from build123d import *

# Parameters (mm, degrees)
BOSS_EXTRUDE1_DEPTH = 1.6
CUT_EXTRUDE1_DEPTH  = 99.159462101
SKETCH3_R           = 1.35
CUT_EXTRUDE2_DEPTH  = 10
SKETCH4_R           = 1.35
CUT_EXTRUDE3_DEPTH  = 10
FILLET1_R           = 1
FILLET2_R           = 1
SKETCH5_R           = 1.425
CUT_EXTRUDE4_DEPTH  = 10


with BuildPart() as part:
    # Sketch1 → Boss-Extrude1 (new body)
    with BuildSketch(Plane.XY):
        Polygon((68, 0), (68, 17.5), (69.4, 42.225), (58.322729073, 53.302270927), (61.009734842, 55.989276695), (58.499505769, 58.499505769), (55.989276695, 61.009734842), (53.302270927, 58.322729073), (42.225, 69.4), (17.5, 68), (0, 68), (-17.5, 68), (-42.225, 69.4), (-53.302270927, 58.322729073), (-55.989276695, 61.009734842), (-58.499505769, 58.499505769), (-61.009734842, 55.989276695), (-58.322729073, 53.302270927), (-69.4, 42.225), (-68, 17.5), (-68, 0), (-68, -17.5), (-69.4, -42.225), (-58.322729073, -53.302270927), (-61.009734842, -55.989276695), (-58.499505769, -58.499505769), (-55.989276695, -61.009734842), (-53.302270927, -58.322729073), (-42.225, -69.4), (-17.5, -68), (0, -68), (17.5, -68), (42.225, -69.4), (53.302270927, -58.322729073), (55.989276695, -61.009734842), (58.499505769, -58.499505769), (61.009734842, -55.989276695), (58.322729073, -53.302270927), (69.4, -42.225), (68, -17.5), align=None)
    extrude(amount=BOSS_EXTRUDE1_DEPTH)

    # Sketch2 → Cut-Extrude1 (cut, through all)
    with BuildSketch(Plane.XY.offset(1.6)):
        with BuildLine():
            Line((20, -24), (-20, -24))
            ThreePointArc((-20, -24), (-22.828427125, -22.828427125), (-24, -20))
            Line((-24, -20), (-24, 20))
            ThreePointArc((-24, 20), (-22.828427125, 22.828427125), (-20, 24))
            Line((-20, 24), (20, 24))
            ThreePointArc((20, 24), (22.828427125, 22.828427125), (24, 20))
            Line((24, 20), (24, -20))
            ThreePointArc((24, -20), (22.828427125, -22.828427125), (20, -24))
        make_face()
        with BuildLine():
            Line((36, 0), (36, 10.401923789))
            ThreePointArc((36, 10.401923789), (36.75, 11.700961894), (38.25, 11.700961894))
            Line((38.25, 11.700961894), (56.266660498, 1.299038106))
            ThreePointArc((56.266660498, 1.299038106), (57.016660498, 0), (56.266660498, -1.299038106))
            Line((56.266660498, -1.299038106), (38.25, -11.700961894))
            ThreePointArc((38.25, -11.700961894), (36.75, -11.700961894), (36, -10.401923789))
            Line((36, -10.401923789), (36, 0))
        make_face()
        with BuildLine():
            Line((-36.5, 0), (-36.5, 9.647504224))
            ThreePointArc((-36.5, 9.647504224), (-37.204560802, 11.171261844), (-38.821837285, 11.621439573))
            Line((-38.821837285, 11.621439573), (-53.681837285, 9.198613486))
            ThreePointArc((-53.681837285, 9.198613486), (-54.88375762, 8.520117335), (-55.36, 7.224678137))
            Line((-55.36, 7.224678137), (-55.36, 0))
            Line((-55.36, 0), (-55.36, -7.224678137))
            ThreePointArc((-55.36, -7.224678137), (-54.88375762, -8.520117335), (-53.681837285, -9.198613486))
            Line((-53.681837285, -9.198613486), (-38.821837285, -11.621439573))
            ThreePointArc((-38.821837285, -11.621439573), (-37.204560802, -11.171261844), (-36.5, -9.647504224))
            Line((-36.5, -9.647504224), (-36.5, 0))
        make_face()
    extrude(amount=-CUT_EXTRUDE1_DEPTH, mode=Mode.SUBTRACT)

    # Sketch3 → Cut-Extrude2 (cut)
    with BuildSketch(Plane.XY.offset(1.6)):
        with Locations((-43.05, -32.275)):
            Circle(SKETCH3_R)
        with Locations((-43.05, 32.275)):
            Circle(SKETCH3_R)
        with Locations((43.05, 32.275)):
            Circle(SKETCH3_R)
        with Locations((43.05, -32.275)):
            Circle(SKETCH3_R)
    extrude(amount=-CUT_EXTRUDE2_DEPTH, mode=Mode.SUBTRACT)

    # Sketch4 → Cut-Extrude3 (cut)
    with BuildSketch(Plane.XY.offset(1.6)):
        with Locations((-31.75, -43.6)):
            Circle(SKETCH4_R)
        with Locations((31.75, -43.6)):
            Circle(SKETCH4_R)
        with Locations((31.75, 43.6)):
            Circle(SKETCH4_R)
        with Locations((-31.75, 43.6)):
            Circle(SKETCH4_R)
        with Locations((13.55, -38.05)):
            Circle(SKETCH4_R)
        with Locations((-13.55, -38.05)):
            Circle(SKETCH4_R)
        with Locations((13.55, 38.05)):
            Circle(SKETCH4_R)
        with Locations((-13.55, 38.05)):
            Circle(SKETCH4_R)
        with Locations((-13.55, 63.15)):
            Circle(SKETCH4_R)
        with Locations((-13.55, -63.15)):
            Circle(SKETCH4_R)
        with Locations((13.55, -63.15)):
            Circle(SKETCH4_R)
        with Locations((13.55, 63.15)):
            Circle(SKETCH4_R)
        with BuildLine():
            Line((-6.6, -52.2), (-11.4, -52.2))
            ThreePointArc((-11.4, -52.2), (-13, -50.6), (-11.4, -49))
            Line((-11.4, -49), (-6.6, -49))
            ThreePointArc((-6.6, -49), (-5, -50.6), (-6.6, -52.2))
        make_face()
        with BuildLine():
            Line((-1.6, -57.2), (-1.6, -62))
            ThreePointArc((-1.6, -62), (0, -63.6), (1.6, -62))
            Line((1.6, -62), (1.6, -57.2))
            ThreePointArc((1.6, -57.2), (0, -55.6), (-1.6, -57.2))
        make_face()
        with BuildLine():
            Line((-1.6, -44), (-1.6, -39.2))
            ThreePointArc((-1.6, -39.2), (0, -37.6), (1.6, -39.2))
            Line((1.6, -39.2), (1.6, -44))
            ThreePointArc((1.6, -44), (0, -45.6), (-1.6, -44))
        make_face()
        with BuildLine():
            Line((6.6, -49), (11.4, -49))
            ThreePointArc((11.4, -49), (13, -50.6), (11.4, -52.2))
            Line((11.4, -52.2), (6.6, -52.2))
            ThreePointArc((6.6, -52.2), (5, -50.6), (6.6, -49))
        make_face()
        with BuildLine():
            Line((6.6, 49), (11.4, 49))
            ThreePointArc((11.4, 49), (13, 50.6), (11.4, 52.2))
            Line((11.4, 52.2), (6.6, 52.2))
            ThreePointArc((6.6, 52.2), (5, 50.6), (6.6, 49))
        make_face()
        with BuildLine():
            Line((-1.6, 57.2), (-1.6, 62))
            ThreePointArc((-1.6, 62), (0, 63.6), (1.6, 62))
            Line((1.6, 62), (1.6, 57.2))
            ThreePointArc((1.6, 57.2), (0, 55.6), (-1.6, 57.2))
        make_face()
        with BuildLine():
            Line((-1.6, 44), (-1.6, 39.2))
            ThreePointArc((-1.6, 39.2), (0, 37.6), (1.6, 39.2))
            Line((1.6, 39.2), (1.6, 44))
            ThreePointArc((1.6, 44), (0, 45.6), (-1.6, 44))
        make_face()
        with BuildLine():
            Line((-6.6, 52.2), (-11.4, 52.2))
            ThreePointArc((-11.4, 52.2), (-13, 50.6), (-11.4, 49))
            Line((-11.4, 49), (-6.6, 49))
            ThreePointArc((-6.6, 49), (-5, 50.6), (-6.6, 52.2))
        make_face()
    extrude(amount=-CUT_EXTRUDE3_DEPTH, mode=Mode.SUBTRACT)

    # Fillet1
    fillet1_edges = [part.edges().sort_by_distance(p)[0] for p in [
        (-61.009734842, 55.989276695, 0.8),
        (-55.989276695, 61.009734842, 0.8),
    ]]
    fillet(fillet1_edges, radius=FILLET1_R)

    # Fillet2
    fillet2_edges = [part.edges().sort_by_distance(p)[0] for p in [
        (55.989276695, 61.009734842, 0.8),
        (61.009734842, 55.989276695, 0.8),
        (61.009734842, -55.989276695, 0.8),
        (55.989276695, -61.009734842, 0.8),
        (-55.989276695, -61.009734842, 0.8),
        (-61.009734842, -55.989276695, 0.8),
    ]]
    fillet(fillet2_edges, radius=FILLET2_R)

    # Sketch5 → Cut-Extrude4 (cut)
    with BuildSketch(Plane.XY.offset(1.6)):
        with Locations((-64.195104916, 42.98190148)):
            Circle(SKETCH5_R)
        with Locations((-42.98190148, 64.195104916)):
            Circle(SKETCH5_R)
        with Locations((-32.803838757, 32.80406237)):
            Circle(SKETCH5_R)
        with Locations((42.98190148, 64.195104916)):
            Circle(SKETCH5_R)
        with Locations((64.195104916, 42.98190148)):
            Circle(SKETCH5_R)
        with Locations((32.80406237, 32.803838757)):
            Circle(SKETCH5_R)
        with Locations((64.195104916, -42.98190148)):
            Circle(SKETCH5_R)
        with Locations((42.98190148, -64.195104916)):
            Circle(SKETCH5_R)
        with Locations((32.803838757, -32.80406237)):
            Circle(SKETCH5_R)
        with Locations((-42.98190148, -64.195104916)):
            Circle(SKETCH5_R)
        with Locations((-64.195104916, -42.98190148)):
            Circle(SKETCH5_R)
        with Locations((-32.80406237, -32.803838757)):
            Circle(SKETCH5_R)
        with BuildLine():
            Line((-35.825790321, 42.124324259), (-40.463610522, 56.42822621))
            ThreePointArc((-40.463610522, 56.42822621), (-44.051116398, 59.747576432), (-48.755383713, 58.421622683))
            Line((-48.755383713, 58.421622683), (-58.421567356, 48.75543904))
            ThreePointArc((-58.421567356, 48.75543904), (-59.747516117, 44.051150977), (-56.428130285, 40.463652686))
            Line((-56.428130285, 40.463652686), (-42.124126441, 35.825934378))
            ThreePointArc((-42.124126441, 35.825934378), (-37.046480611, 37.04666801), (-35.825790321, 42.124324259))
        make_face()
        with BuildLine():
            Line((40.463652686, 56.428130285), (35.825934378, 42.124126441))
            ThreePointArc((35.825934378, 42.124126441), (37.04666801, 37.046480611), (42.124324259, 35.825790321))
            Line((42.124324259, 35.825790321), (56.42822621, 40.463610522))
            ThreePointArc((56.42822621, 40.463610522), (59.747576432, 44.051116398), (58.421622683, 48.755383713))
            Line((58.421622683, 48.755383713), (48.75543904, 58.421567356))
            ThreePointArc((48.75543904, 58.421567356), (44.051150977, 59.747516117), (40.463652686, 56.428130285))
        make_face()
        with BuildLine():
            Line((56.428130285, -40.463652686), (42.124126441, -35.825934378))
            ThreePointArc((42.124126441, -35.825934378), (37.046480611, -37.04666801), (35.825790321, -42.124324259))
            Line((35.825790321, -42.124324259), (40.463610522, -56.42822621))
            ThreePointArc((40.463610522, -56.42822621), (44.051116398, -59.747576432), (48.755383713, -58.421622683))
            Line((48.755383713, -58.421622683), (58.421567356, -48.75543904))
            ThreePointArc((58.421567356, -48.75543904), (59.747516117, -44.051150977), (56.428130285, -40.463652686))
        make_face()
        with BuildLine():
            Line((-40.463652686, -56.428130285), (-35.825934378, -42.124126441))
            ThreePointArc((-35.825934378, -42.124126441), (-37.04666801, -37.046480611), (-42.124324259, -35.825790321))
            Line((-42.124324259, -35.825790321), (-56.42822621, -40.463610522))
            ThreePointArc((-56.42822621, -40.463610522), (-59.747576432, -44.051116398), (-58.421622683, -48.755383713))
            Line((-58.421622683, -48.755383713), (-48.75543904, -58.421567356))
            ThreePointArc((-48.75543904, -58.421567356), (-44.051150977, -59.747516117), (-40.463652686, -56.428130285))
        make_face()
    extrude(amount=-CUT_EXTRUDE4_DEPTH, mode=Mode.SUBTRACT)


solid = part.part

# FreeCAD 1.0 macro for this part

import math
import FreeCAD as App
import Part
import Sketcher
Q = App.Units.Quantity


def edges_at(feature, points):
    """Names of the edges that pass closest to the given points."""
    edges = feature.Shape.Edges
    near = lambda p: min(range(len(edges)), key=lambda i: edges[i].distToShape(Part.Vertex(*p))[0])
    return sorted({f"Edge{near(p) + 1}" for p in points})

doc = App.newDocument("Part")
body = doc.addObject("PartDesign::Body", "Body")

# Sketch on XY plane
sketch1 = body.newObject("Sketcher::SketchObject", "Sketch")
sketch1.AttachmentSupport = (doc.getObject("XY_Plane"), [""])
sketch1.MapMode = "FlatFace"
sketch1.addGeometry([
    Part.LineSegment(App.Vector(68, 17.5, 0), App.Vector(69.4, 42.2, 0)),  # 0
    Part.LineSegment(App.Vector(69.4, 42.2, 0), App.Vector(58.3, 53.3, 0)),  # 1
    Part.LineSegment(App.Vector(58.3, 53.3, 0), App.Vector(61, 56, 0)),  # 2
    Part.LineSegment(App.Vector(61, 56, 0), App.Vector(58.5, 58.5, 0)),  # 3
    Part.LineSegment(App.Vector(58.5, 58.5, 0), App.Vector(56, 61, 0)),  # 4
    Part.LineSegment(App.Vector(56, 61, 0), App.Vector(53.3, 58.3, 0)),  # 5
    Part.LineSegment(App.Vector(53.3, 58.3, 0), App.Vector(42.2, 69.4, 0)),  # 6
    Part.LineSegment(App.Vector(42.2, 69.4, 0), App.Vector(17.5, 68, 0)),  # 7
    Part.LineSegment(App.Vector(17.5, 68, 0), App.Vector(-17.5, 68, 0)),  # 8
    Part.LineSegment(App.Vector(-17.5, 68, 0), App.Vector(-42.2, 69.4, 0)),  # 9
    Part.LineSegment(App.Vector(-42.2, 69.4, 0), App.Vector(-53.3, 58.3, 0)),  # 10
    Part.LineSegment(App.Vector(-53.3, 58.3, 0), App.Vector(-56, 61, 0)),  # 11
    Part.LineSegment(App.Vector(-56, 61, 0), App.Vector(-58.5, 58.5, 0)),  # 12
    Part.LineSegment(App.Vector(-58.5, 58.5, 0), App.Vector(-61, 56, 0)),  # 13
    Part.LineSegment(App.Vector(-61, 56, 0), App.Vector(-58.3, 53.3, 0)),  # 14
    Part.LineSegment(App.Vector(-58.3, 53.3, 0), App.Vector(-69.4, 42.2, 0)),  # 15
    Part.LineSegment(App.Vector(-69.4, 42.2, 0), App.Vector(-68, 17.5, 0)),  # 16
    Part.LineSegment(App.Vector(-68, 17.5, 0), App.Vector(-68, -17.5, 0)),  # 17
    Part.LineSegment(App.Vector(-68, -17.5, 0), App.Vector(-69.4, -42.2, 0)),  # 18
    Part.LineSegment(App.Vector(-69.4, -42.2, 0), App.Vector(-58.3, -53.3, 0)),  # 19
    Part.LineSegment(App.Vector(-58.3, -53.3, 0), App.Vector(-61, -56, 0)),  # 20
    Part.LineSegment(App.Vector(-61, -56, 0), App.Vector(-58.5, -58.5, 0)),  # 21
    Part.LineSegment(App.Vector(-58.5, -58.5, 0), App.Vector(-56, -61, 0)),  # 22
    Part.LineSegment(App.Vector(-56, -61, 0), App.Vector(-53.3, -58.3, 0)),  # 23
    Part.LineSegment(App.Vector(-53.3, -58.3, 0), App.Vector(-42.2, -69.4, 0)),  # 24
    Part.LineSegment(App.Vector(-42.2, -69.4, 0), App.Vector(-17.5, -68, 0)),  # 25
    Part.LineSegment(App.Vector(-17.5, -68, 0), App.Vector(17.5, -68, 0)),  # 26
    Part.LineSegment(App.Vector(17.5, -68, 0), App.Vector(42.2, -69.4, 0)),  # 27
    Part.LineSegment(App.Vector(42.2, -69.4, 0), App.Vector(53.3, -58.3, 0)),  # 28
    Part.LineSegment(App.Vector(53.3, -58.3, 0), App.Vector(56, -61, 0)),  # 29
    Part.LineSegment(App.Vector(56, -61, 0), App.Vector(58.5, -58.5, 0)),  # 30
    Part.LineSegment(App.Vector(58.5, -58.5, 0), App.Vector(61, -56, 0)),  # 31
    Part.LineSegment(App.Vector(61, -56, 0), App.Vector(58.3, -53.3, 0)),  # 32
    Part.LineSegment(App.Vector(58.3, -53.3, 0), App.Vector(69.4, -42.2, 0)),  # 33
    Part.LineSegment(App.Vector(69.4, -42.2, 0), App.Vector(68, -17.5, 0)),  # 34
    Part.LineSegment(App.Vector(68, -17.5, 0), App.Vector(68, 17.5, 0)),  # 35
], False)
sketch1.addConstraint([
    Sketcher.Constraint("Coincident", 0, 2, 1, 1),
    Sketcher.Constraint("Coincident", 1, 2, 2, 1),
    Sketcher.Constraint("Coincident", 2, 2, 3, 1),
    Sketcher.Constraint("Coincident", 3, 2, 4, 1),
    Sketcher.Constraint("Coincident", 4, 2, 5, 1),
    Sketcher.Constraint("Coincident", 5, 2, 6, 1),
    Sketcher.Constraint("Coincident", 6, 2, 7, 1),
    Sketcher.Constraint("Coincident", 7, 2, 8, 1),
    Sketcher.Constraint("Coincident", 8, 2, 9, 1),
    Sketcher.Constraint("Coincident", 9, 2, 10, 1),
    Sketcher.Constraint("Coincident", 10, 2, 11, 1),
    Sketcher.Constraint("Coincident", 11, 2, 12, 1),
    Sketcher.Constraint("Coincident", 12, 2, 13, 1),
    Sketcher.Constraint("Coincident", 13, 2, 14, 1),
    Sketcher.Constraint("Coincident", 14, 2, 15, 1),
    Sketcher.Constraint("Coincident", 15, 2, 16, 1),
    Sketcher.Constraint("Coincident", 16, 2, 17, 1),
    Sketcher.Constraint("Coincident", 17, 2, 18, 1),
    Sketcher.Constraint("Coincident", 18, 2, 19, 1),
    Sketcher.Constraint("Coincident", 19, 2, 20, 1),
    Sketcher.Constraint("Coincident", 20, 2, 21, 1),
    Sketcher.Constraint("Coincident", 21, 2, 22, 1),
    Sketcher.Constraint("Coincident", 22, 2, 23, 1),
    Sketcher.Constraint("Coincident", 23, 2, 24, 1),
    Sketcher.Constraint("Coincident", 24, 2, 25, 1),
    Sketcher.Constraint("Coincident", 25, 2, 26, 1),
    Sketcher.Constraint("Coincident", 26, 2, 27, 1),
    Sketcher.Constraint("Coincident", 27, 2, 28, 1),
    Sketcher.Constraint("Coincident", 28, 2, 29, 1),
    Sketcher.Constraint("Coincident", 29, 2, 30, 1),
    Sketcher.Constraint("Coincident", 30, 2, 31, 1),
    Sketcher.Constraint("Coincident", 31, 2, 32, 1),
    Sketcher.Constraint("Coincident", 32, 2, 33, 1),
    Sketcher.Constraint("Coincident", 33, 2, 34, 1),
    Sketcher.Constraint("Coincident", 34, 2, 35, 1),
    Sketcher.Constraint("Coincident", 35, 2, 0, 1),
    Sketcher.Constraint("Horizontal", 8),
    Sketcher.Constraint("Vertical", 17),
    Sketcher.Constraint("Horizontal", 26),
    Sketcher.Constraint("Vertical", 35),
    Sketcher.Constraint("Symmetric", 0, 2, 18, 2, -1, 1),
    Sketcher.Constraint("Symmetric", 1, 2, 19, 2, -1, 1),
    Sketcher.Constraint("Symmetric", 2, 2, 20, 2, -1, 1),
    Sketcher.Constraint("Symmetric", 3, 2, 21, 2, -1, 1),
    Sketcher.Constraint("Symmetric", 4, 2, 22, 2, -1, 1),
    Sketcher.Constraint("Symmetric", 5, 2, 23, 2, -1, 1),
    Sketcher.Constraint("Symmetric", 6, 2, 24, 2, -1, 1),
    Sketcher.Constraint("Symmetric", 7, 2, 25, 2, -1, 1),
    Sketcher.Constraint("Symmetric", 9, 2, 27, 2, -1, 1),
    Sketcher.Constraint("Symmetric", 10, 2, 28, 2, -1, 1),
    Sketcher.Constraint("Symmetric", 11, 2, 29, 2, -1, 1),
    Sketcher.Constraint("Symmetric", 12, 2, 30, 2, -1, 1),
    Sketcher.Constraint("Symmetric", 13, 2, 31, 2, -1, 1),
    Sketcher.Constraint("Symmetric", 14, 2, 32, 2, -1, 1),
    Sketcher.Constraint("Symmetric", 15, 2, 33, 2, -1, 1),
    Sketcher.Constraint("Symmetric", 16, 2, 34, 2, -1, 1),
    Sketcher.Constraint("Symmetric", 6, 2, 9, 2, -2),
    Sketcher.Constraint("Symmetric", 5, 2, 10, 2, -2),
    Sketcher.Constraint("Symmetric", 4, 2, 11, 2, -2),
    Sketcher.Constraint("Symmetric", 3, 2, 12, 2, -2),
    Sketcher.Constraint("Symmetric", 2, 2, 13, 2, -2),
    Sketcher.Constraint("Symmetric", 1, 2, 14, 2, -2),
    Sketcher.Constraint("Symmetric", 0, 2, 15, 2, -2),
    Sketcher.Constraint("Perpendicular", 1, 2),
    Sketcher.Constraint("Perpendicular", 2, 3),
    Sketcher.Constraint("Parallel", 3, 4),
    Sketcher.Constraint("Perpendicular", 4, 5),
    Sketcher.Constraint("Perpendicular", 5, 6),
    Sketcher.Constraint("Perpendicular", 0, 9),
    Sketcher.Constraint("Perpendicular", 6, 10),
    Sketcher.Constraint("Perpendicular", 7, 16),
    Sketcher.Constraint("Perpendicular", 9, 18),
    Sketcher.Constraint("Perpendicular", 18, 27),
    Sketcher.Constraint("Horizontal", 17, 2, 34, 2),
    Sketcher.Constraint("Equal", 26, 17),
    Sketcher.Constraint("Equal", 3, 4),
    Sketcher.Constraint("Equal", 2, 5),
    Sketcher.Constraint("Equal", 1, 6),
    Sketcher.Constraint("Equal", 0, 7),
    Sketcher.Constraint("DistanceX", 8, 2, 8, 1, Q("35 mm")),
    Sketcher.Constraint("DistanceY", -1, 1, 7, 2, Q("68 mm")),
    Sketcher.Constraint("Distance", 2, Q("3.8 mm")),
    Sketcher.Constraint("DistanceX", -1, 1, 0, 2, Q("69.4 mm")),
    Sketcher.Constraint("Distance", 3, Q("3.55 mm")),
    Sketcher.Constraint("DistanceX", 9, 2, 6, 2, Q("84.45 mm")),
])
pad1 = body.newObject("PartDesign::Pad", "Pad")
pad1.Profile = sketch1
pad1.Length = 1.6

# Sketch on XY plane
sketch2 = body.newObject("Sketcher::SketchObject", "Sketch001")
sketch2.AttachmentSupport = (doc.getObject("XY_Plane"), [""])
sketch2.MapMode = "FlatFace"
sketch2.AttachmentOffset = App.Placement(App.Vector(0, 0, 1.6), App.Rotation())
sketch2.addGeometry([
    Part.LineSegment(App.Vector(-20, -24, 0), App.Vector(20, -24, 0)),  # 0
    Part.ArcOfCircle(Part.Circle(App.Vector(20, -20, 0), App.Vector(0, 0, 1), 4), math.radians(-90), math.radians(0)),  # 1
    Part.LineSegment(App.Vector(24, -20, 0), App.Vector(24, 20, 0)),  # 2
    Part.ArcOfCircle(Part.Circle(App.Vector(20, 20, 0), App.Vector(0, 0, 1), 4), math.radians(0), math.radians(90)),  # 3
    Part.LineSegment(App.Vector(20, 24, 0), App.Vector(-20, 24, 0)),  # 4
    Part.ArcOfCircle(Part.Circle(App.Vector(-20, 20, 0), App.Vector(0, 0, 1), 4), math.radians(90), math.radians(180)),  # 5
    Part.LineSegment(App.Vector(-24, 20, 0), App.Vector(-24, -20, 0)),  # 6
    Part.ArcOfCircle(Part.Circle(App.Vector(-20, -20, 0), App.Vector(0, 0, 1), 4), math.radians(180), math.radians(270)),  # 7
    Part.ArcOfCircle(Part.Circle(App.Vector(37.5, 10.4, 0), App.Vector(0, 0, 1), 1.5), math.radians(60), math.radians(180)),  # 8
    Part.LineSegment(App.Vector(36, 10.4, 0), App.Vector(36, -10.4, 0)),  # 9
    Part.ArcOfCircle(Part.Circle(App.Vector(37.5, -10.4, 0), App.Vector(0, 0, 1), 1.5), math.radians(-180), math.radians(-60)),  # 10
    Part.LineSegment(App.Vector(38.2, -11.7, 0), App.Vector(56.3, -1.3, 0)),  # 11
    Part.ArcOfCircle(Part.Circle(App.Vector(55.5, 0, 0), App.Vector(0, 0, 1), 1.5), math.radians(-60), math.radians(60)),  # 12
    Part.LineSegment(App.Vector(56.3, 1.3, 0), App.Vector(38.2, 11.7, 0)),  # 13
    Part.ArcOfCircle(Part.Circle(App.Vector(-38.5, 9.6, 0), App.Vector(0, 0, 1), 2), math.radians(0), math.radians(99)),  # 14
    Part.LineSegment(App.Vector(-38.8, 11.6, 0), App.Vector(-53.7, 9.2, 0)),  # 15
    Part.ArcOfCircle(Part.Circle(App.Vector(-53.4, 7.2, 0), App.Vector(0, 0, 1), 2), math.radians(99), math.radians(180)),  # 16
    Part.LineSegment(App.Vector(-55.4, 7.2, 0), App.Vector(-55.4, -7.2, 0)),  # 17
    Part.ArcOfCircle(Part.Circle(App.Vector(-53.4, -7.2, 0), App.Vector(0, 0, 1), 2), math.radians(180), math.radians(261)),  # 18
    Part.LineSegment(App.Vector(-53.7, -9.2, 0), App.Vector(-38.8, -11.6, 0)),  # 19
    Part.ArcOfCircle(Part.Circle(App.Vector(-38.5, -9.6, 0), App.Vector(0, 0, 1), 2), math.radians(-99), math.radians(0)),  # 20
    Part.LineSegment(App.Vector(-36.5, -9.6, 0), App.Vector(-36.5, 9.6, 0)),  # 21
], False)
sketch2.addConstraint([
    Sketcher.Constraint("Tangent", 0, 2, 1, 1),
    Sketcher.Constraint("Tangent", 1, 2, 2, 1),
    Sketcher.Constraint("Tangent", 2, 2, 3, 1),
    Sketcher.Constraint("Tangent", 3, 2, 4, 1),
    Sketcher.Constraint("Tangent", 4, 2, 5, 1),
    Sketcher.Constraint("Tangent", 5, 2, 6, 1),
    Sketcher.Constraint("Tangent", 6, 2, 7, 1),
    Sketcher.Constraint("Tangent", 7, 2, 0, 1),
    Sketcher.Constraint("Tangent", 8, 2, 9, 1),
    Sketcher.Constraint("Tangent", 9, 2, 10, 1),
    Sketcher.Constraint("Tangent", 10, 2, 11, 1),
    Sketcher.Constraint("Tangent", 11, 2, 12, 1),
    Sketcher.Constraint("Tangent", 12, 2, 13, 1),
    Sketcher.Constraint("Tangent", 13, 2, 8, 1),
    Sketcher.Constraint("Tangent", 14, 2, 15, 1),
    Sketcher.Constraint("Tangent", 15, 2, 16, 1),
    Sketcher.Constraint("Tangent", 16, 2, 17, 1),
    Sketcher.Constraint("Tangent", 17, 2, 18, 1),
    Sketcher.Constraint("Tangent", 18, 2, 19, 1),
    Sketcher.Constraint("Tangent", 19, 2, 20, 1),
    Sketcher.Constraint("Tangent", 20, 2, 21, 1),
    Sketcher.Constraint("Tangent", 21, 2, 14, 1),
    Sketcher.Constraint("Horizontal", 0),
    Sketcher.Constraint("Vertical", 2),
    Sketcher.Constraint("Horizontal", 4),
    Sketcher.Constraint("Vertical", 6),
    Sketcher.Constraint("Vertical", 9),
    Sketcher.Constraint("Vertical", 17),
    Sketcher.Constraint("Vertical", 21),
    Sketcher.Constraint("Equal", 1, 3),
    Sketcher.Constraint("Equal", 3, 5),
    Sketcher.Constraint("Equal", 5, 7),
    Sketcher.Constraint("Equal", 8, 10),
    Sketcher.Constraint("Equal", 10, 12),
    Sketcher.Constraint("Equal", 14, 16),
    Sketcher.Constraint("Equal", 16, 18),
    Sketcher.Constraint("Equal", 18, 20),
    Sketcher.Constraint("Symmetric", 1, 3, 5, 3, -1, 1),
    Sketcher.Constraint("Symmetric", 11, 2, 12, 2, -1),
    Sketcher.Constraint("Symmetric", 15, 2, 18, 2, -1),
    Sketcher.Constraint("Equal", 4, 2),
    Sketcher.Constraint("Radius", 1, Q("4 mm")),
    Sketcher.Constraint("Radius", 14, Q("2 mm")),
    Sketcher.Constraint("Radius", 8, Q("1.5 mm")),
    Sketcher.Constraint("DistanceX", 0, 1, 0, 2, Q("40 mm")),
    Sketcher.Constraint("Angle", 11, Q("30 deg")),
    Sketcher.Constraint("DistanceX", -1, 1, 8, 2, Q("36 mm")),
    Sketcher.Constraint("DistanceX", 14, 3, 8, 3, Q("76 mm")),
    Sketcher.Constraint("DistanceX", 16, 3, -1, 1, Q("53.36 mm")),
    Sketcher.Constraint("DistanceY", 21, 1, 21, 2, Q("19.295008 mm")),
    Sketcher.Constraint("DistanceY", 9, 2, 9, 1, Q("20.803848 mm")),
    Sketcher.Constraint("DistanceY", 17, 2, 17, 1, Q("14.449356 mm")),
])
pocket1 = body.newObject("PartDesign::Pocket", "Pocket")
pocket1.Profile = sketch2
pocket1.Type = "ThroughAll"

# Sketch on XY plane
sketch3 = body.newObject("Sketcher::SketchObject", "Sketch002")
sketch3.AttachmentSupport = (doc.getObject("XY_Plane"), [""])
sketch3.MapMode = "FlatFace"
sketch3.AttachmentOffset = App.Placement(App.Vector(0, 0, 1.6), App.Rotation())
sketch3.addGeometry([
    Part.Circle(App.Vector(-43, -32.3, 0), App.Vector(0, 0, 1), 1.4),
    Part.Circle(App.Vector(-43, 32.3, 0), App.Vector(0, 0, 1), 1.4),
    Part.Circle(App.Vector(43, 32.3, 0), App.Vector(0, 0, 1), 1.4),
    Part.Circle(App.Vector(43, -32.3, 0), App.Vector(0, 0, 1), 1.4),
], False)
sketch3.addConstraint([
    Sketcher.Constraint("Equal", 0, 1),
    Sketcher.Constraint("Equal", 1, 2),
    Sketcher.Constraint("Equal", 2, 3),
    Sketcher.Constraint("Symmetric", 0, 3, 2, 3, -1, 1),
    Sketcher.Constraint("Symmetric", 1, 3, 3, 3, -1, 1),
    Sketcher.Constraint("Symmetric", 1, 3, 2, 3, -2),
    Sketcher.Constraint("Diameter", 0, Q("2.7 mm")),
    Sketcher.Constraint("DistanceX", 1, 3, 2, 3, Q("86.1 mm")),
    Sketcher.Constraint("DistanceY", 0, 3, 1, 3, Q("64.55 mm")),
])
pocket2 = body.newObject("PartDesign::Pocket", "Pocket001")
pocket2.Profile = sketch3
pocket2.Length = 10

# Sketch on XY plane
sketch4 = body.newObject("Sketcher::SketchObject", "Sketch003")
sketch4.AttachmentSupport = (doc.getObject("XY_Plane"), [""])
sketch4.MapMode = "FlatFace"
sketch4.AttachmentOffset = App.Placement(App.Vector(0, 0, 1.6), App.Rotation())
sketch4.addGeometry([
    Part.Circle(App.Vector(-31.8, -43.6, 0), App.Vector(0, 0, 1), 1.4),  # 0
    Part.Circle(App.Vector(31.8, -43.6, 0), App.Vector(0, 0, 1), 1.4),  # 1
    Part.Circle(App.Vector(31.8, 43.6, 0), App.Vector(0, 0, 1), 1.4),  # 2
    Part.Circle(App.Vector(-31.8, 43.6, 0), App.Vector(0, 0, 1), 1.4),  # 3
    Part.Circle(App.Vector(13.6, -38, 0), App.Vector(0, 0, 1), 1.4),  # 4
    Part.Circle(App.Vector(-13.6, -38, 0), App.Vector(0, 0, 1), 1.4),  # 5
    Part.Circle(App.Vector(13.6, 38, 0), App.Vector(0, 0, 1), 1.4),  # 6
    Part.Circle(App.Vector(-13.6, 38, 0), App.Vector(0, 0, 1), 1.4),  # 7
    Part.Circle(App.Vector(-13.6, 63.1, 0), App.Vector(0, 0, 1), 1.4),  # 8
    Part.Circle(App.Vector(-13.6, -63.1, 0), App.Vector(0, 0, 1), 1.4),  # 9
    Part.Circle(App.Vector(13.6, -63.1, 0), App.Vector(0, 0, 1), 1.4),  # 10
    Part.Circle(App.Vector(13.6, 63.1, 0), App.Vector(0, 0, 1), 1.4),  # 11
    Part.LineSegment(App.Vector(-11.4, -52.2, 0), App.Vector(-6.6, -52.2, 0)),  # 12
    Part.ArcOfCircle(Part.Circle(App.Vector(-6.6, -50.6, 0), App.Vector(0, 0, 1), 1.6), math.radians(-90), math.radians(90)),  # 13
    Part.LineSegment(App.Vector(-6.6, -49, 0), App.Vector(-11.4, -49, 0)),  # 14
    Part.ArcOfCircle(Part.Circle(App.Vector(-11.4, -50.6, 0), App.Vector(0, 0, 1), 1.6), math.radians(90), math.radians(270)),  # 15
    Part.LineSegment(App.Vector(-1.6, -57.2, 0), App.Vector(-1.6, -62, 0)),  # 16
    Part.ArcOfCircle(Part.Circle(App.Vector(0, -62, 0), App.Vector(0, 0, 1), 1.6), math.radians(180), math.radians(360)),  # 17
    Part.LineSegment(App.Vector(1.6, -62, 0), App.Vector(1.6, -57.2, 0)),  # 18
    Part.ArcOfCircle(Part.Circle(App.Vector(0, -57.2, 0), App.Vector(0, 0, 1), 1.6), math.radians(0), math.radians(180)),  # 19
    Part.LineSegment(App.Vector(-1.6, -39.2, 0), App.Vector(-1.6, -44, 0)),  # 20
    Part.ArcOfCircle(Part.Circle(App.Vector(0, -44, 0), App.Vector(0, 0, 1), 1.6), math.radians(180), math.radians(360)),  # 21
    Part.LineSegment(App.Vector(1.6, -44, 0), App.Vector(1.6, -39.2, 0)),  # 22
    Part.ArcOfCircle(Part.Circle(App.Vector(0, -39.2, 0), App.Vector(0, 0, 1), 1.6), math.radians(0), math.radians(180)),  # 23
    Part.LineSegment(App.Vector(11.4, -49, 0), App.Vector(6.6, -49, 0)),  # 24
    Part.ArcOfCircle(Part.Circle(App.Vector(6.6, -50.6, 0), App.Vector(0, 0, 1), 1.6), math.radians(90), math.radians(270)),  # 25
    Part.LineSegment(App.Vector(6.6, -52.2, 0), App.Vector(11.4, -52.2, 0)),  # 26
    Part.ArcOfCircle(Part.Circle(App.Vector(11.4, -50.6, 0), App.Vector(0, 0, 1), 1.6), math.radians(-90), math.radians(90)),  # 27
    Part.LineSegment(App.Vector(6.6, 49, 0), App.Vector(11.4, 49, 0)),  # 28
    Part.ArcOfCircle(Part.Circle(App.Vector(11.4, 50.6, 0), App.Vector(0, 0, 1), 1.6), math.radians(-90), math.radians(90)),  # 29
    Part.LineSegment(App.Vector(11.4, 52.2, 0), App.Vector(6.6, 52.2, 0)),  # 30
    Part.ArcOfCircle(Part.Circle(App.Vector(6.6, 50.6, 0), App.Vector(0, 0, 1), 1.6), math.radians(90), math.radians(270)),  # 31
    Part.LineSegment(App.Vector(-1.6, 62, 0), App.Vector(-1.6, 57.2, 0)),  # 32
    Part.ArcOfCircle(Part.Circle(App.Vector(0, 57.2, 0), App.Vector(0, 0, 1), 1.6), math.radians(180), math.radians(360)),  # 33
    Part.LineSegment(App.Vector(1.6, 57.2, 0), App.Vector(1.6, 62, 0)),  # 34
    Part.ArcOfCircle(Part.Circle(App.Vector(0, 62, 0), App.Vector(0, 0, 1), 1.6), math.radians(0), math.radians(180)),  # 35
    Part.LineSegment(App.Vector(-1.6, 44, 0), App.Vector(-1.6, 39.2, 0)),  # 36
    Part.ArcOfCircle(Part.Circle(App.Vector(0, 39.2, 0), App.Vector(0, 0, 1), 1.6), math.radians(180), math.radians(360)),  # 37
    Part.LineSegment(App.Vector(1.6, 39.2, 0), App.Vector(1.6, 44, 0)),  # 38
    Part.ArcOfCircle(Part.Circle(App.Vector(0, 44, 0), App.Vector(0, 0, 1), 1.6), math.radians(0), math.radians(180)),  # 39
    Part.LineSegment(App.Vector(-6.6, 52.2, 0), App.Vector(-11.4, 52.2, 0)),  # 40
    Part.ArcOfCircle(Part.Circle(App.Vector(-11.4, 50.6, 0), App.Vector(0, 0, 1), 1.6), math.radians(90), math.radians(270)),  # 41
    Part.LineSegment(App.Vector(-11.4, 49, 0), App.Vector(-6.6, 49, 0)),  # 42
    Part.ArcOfCircle(Part.Circle(App.Vector(-6.6, 50.6, 0), App.Vector(0, 0, 1), 1.6), math.radians(-90), math.radians(90)),  # 43
], False)
sketch4.addConstraint([
    Sketcher.Constraint("Tangent", 12, 2, 13, 1),
    Sketcher.Constraint("Tangent", 13, 2, 14, 1),
    Sketcher.Constraint("Tangent", 14, 2, 15, 1),
    Sketcher.Constraint("Tangent", 15, 2, 12, 1),
    Sketcher.Constraint("Tangent", 16, 2, 17, 1),
    Sketcher.Constraint("Tangent", 17, 2, 18, 1),
    Sketcher.Constraint("Tangent", 18, 2, 19, 1),
    Sketcher.Constraint("Tangent", 19, 2, 16, 1),
    Sketcher.Constraint("Tangent", 20, 2, 21, 1),
    Sketcher.Constraint("Tangent", 21, 2, 22, 1),
    Sketcher.Constraint("Tangent", 22, 2, 23, 1),
    Sketcher.Constraint("Tangent", 23, 2, 20, 1),
    Sketcher.Constraint("Tangent", 24, 2, 25, 1),
    Sketcher.Constraint("Tangent", 25, 2, 26, 1),
    Sketcher.Constraint("Tangent", 26, 2, 27, 1),
    Sketcher.Constraint("Tangent", 27, 2, 24, 1),
    Sketcher.Constraint("Tangent", 28, 2, 29, 1),
    Sketcher.Constraint("Tangent", 29, 2, 30, 1),
    Sketcher.Constraint("Tangent", 30, 2, 31, 1),
    Sketcher.Constraint("Tangent", 31, 2, 28, 1),
    Sketcher.Constraint("Tangent", 32, 2, 33, 1),
    Sketcher.Constraint("Tangent", 33, 2, 34, 1),
    Sketcher.Constraint("Tangent", 34, 2, 35, 1),
    Sketcher.Constraint("Tangent", 35, 2, 32, 1),
    Sketcher.Constraint("Tangent", 36, 2, 37, 1),
    Sketcher.Constraint("Tangent", 37, 2, 38, 1),
    Sketcher.Constraint("Tangent", 38, 2, 39, 1),
    Sketcher.Constraint("Tangent", 39, 2, 36, 1),
    Sketcher.Constraint("Tangent", 40, 2, 41, 1),
    Sketcher.Constraint("Tangent", 41, 2, 42, 1),
    Sketcher.Constraint("Tangent", 42, 2, 43, 1),
    Sketcher.Constraint("Tangent", 43, 2, 40, 1),
    Sketcher.Constraint("Horizontal", 12),
    Sketcher.Constraint("Horizontal", 14),
    Sketcher.Constraint("Vertical", 16),
    Sketcher.Constraint("Vertical", 18),
    Sketcher.Constraint("Vertical", 20),
    Sketcher.Constraint("Vertical", 22),
    Sketcher.Constraint("Horizontal", 24),
    Sketcher.Constraint("Horizontal", 26),
    Sketcher.Constraint("Horizontal", 28),
    Sketcher.Constraint("Horizontal", 30),
    Sketcher.Constraint("Vertical", 32),
    Sketcher.Constraint("Vertical", 34),
    Sketcher.Constraint("Vertical", 36),
    Sketcher.Constraint("Vertical", 38),
    Sketcher.Constraint("Horizontal", 40),
    Sketcher.Constraint("Horizontal", 42),
    Sketcher.Constraint("Equal", 0, 1),
    Sketcher.Constraint("Equal", 1, 2),
    Sketcher.Constraint("Equal", 2, 3),
    Sketcher.Constraint("Equal", 3, 4),
    Sketcher.Constraint("Equal", 4, 5),
    Sketcher.Constraint("Equal", 5, 6),
    Sketcher.Constraint("Equal", 6, 7),
    Sketcher.Constraint("Equal", 7, 8),
    Sketcher.Constraint("Equal", 8, 9),
    Sketcher.Constraint("Equal", 9, 10),
    Sketcher.Constraint("Equal", 10, 11),
    Sketcher.Constraint("Equal", 15, 17),
    Sketcher.Constraint("Equal", 19, 21),
    Sketcher.Constraint("Equal", 23, 25),
    Sketcher.Constraint("Equal", 27, 29),
    Sketcher.Constraint("Equal", 31, 33),
    Sketcher.Constraint("Equal", 35, 37),
    Sketcher.Constraint("Equal", 39, 41),
    Sketcher.Constraint("Symmetric", 0, 3, 2, 3, -1, 1),
    Sketcher.Constraint("Symmetric", 1, 3, 3, 3, -1, 1),
    Sketcher.Constraint("Symmetric", 5, 3, 6, 3, -1, 1),
    Sketcher.Constraint("Symmetric", 4, 3, 7, 3, -1, 1),
    Sketcher.Constraint("Symmetric", 8, 3, 10, 3, -1, 1),
    Sketcher.Constraint("Symmetric", 9, 3, 11, 3, -1, 1),
    Sketcher.Constraint("Symmetric", 15, 3, 29, 3, -1, 1),
    Sketcher.Constraint("Symmetric", 19, 3, 33, 3, -1, 1),
    Sketcher.Constraint("Symmetric", 23, 3, 37, 3, -1, 1),
    Sketcher.Constraint("Symmetric", 27, 3, 41, 3, -1, 1),
    Sketcher.Constraint("Symmetric", 0, 3, 1, 3, -2),
    Sketcher.Constraint("Symmetric", 4, 3, 5, 3, -2),
    Sketcher.Constraint("Symmetric", 9, 3, 10, 3, -2),
    Sketcher.Constraint("Symmetric", 13, 3, 25, 3, -2),
    Sketcher.Constraint("Symmetric", 17, 3, 35, 3, -1),
    Sketcher.Constraint("Symmetric", 21, 3, 39, 3, -1),
    Sketcher.Constraint("Vertical", 7, 3, 8, 3),
    Sketcher.Constraint("Vertical", 27, 3, 29, 3),
    Sketcher.Constraint("Vertical", 25, 3, 31, 3),
    Sketcher.Constraint("Vertical", 13, 3, 43, 3),
    Sketcher.Constraint("Equal", 42, 16),
    Sketcher.Constraint("Equal", 18, 20),
    Sketcher.Constraint("Diameter", 0, Q("2.7 mm")),
    Sketcher.Constraint("Radius", 13, Q("1.6 mm")),
    Sketcher.Constraint("DistanceX", 12, 1, 12, 2, Q("4.8 mm")),
    Sketcher.Constraint("DistanceY", 17, 3, -1, 1, Q("62 mm")),
    Sketcher.Constraint("DistanceY", 21, 3, -1, 1, Q("44 mm")),
    Sketcher.Constraint("DistanceY", 13, 2, -1, 1, Q("49 mm")),
    Sketcher.Constraint("DistanceY", 13, 3, 0, 3, Q("7 mm")),
    Sketcher.Constraint("DistanceX", 12, 2, 16, 2, Q("5 mm")),
    Sketcher.Constraint("DistanceX", 0, 3, 1, 3, Q("63.5 mm")),
    Sketcher.Constraint("DistanceX", 4, 3, 1, 3, Q("18.2 mm")),
    Sketcher.Constraint("DistanceY", 4, 3, 6, 3, Q("76.1 mm")),
    Sketcher.Constraint("DistanceY", 7, 3, 8, 3, Q("25.1 mm")),
])
pocket3 = body.newObject("PartDesign::Pocket", "Pocket002")
pocket3.Profile = sketch4
pocket3.Length = 10
doc.recompute()

fillet = body.newObject("PartDesign::Fillet", "Fillet")
fillet.Base = (pocket3, edges_at(pocket3, [(-61.01, 55.989, 0.8), (-55.989, 61.01, 0.8)]))
fillet.Radius = 1
doc.recompute()

fillet2 = body.newObject("PartDesign::Fillet", "Fillet001")
fillet2.Base = (fillet, edges_at(fillet, [
    (55.989, 61.01, 0.8),
    (61.01, 55.989, 0.8),
    (61.01, -55.989, 0.8),
    (55.989, -61.01, 0.8),
    (-55.989, -61.01, 0.8),
    (-61.01, -55.989, 0.8),
]))
fillet2.Radius = 1

# Sketch on XY plane
sketch5 = body.newObject("Sketcher::SketchObject", "Sketch004")
sketch5.AttachmentSupport = (doc.getObject("XY_Plane"), [""])
sketch5.MapMode = "FlatFace"
sketch5.AttachmentOffset = App.Placement(App.Vector(0, 0, 1.6), App.Rotation())
sketch5.addGeometry([
    Part.Circle(App.Vector(-64.2, 43, 0), App.Vector(0, 0, 1), 1.4),  # 0
    Part.Circle(App.Vector(-43, 64.2, 0), App.Vector(0, 0, 1), 1.4),  # 1
    Part.Circle(App.Vector(-32.8, 32.8, 0), App.Vector(0, 0, 1), 1.4),  # 2
    Part.Circle(App.Vector(43, 64.2, 0), App.Vector(0, 0, 1), 1.4),  # 3
    Part.Circle(App.Vector(64.2, 43, 0), App.Vector(0, 0, 1), 1.4),  # 4
    Part.Circle(App.Vector(32.8, 32.8, 0), App.Vector(0, 0, 1), 1.4),  # 5
    Part.Circle(App.Vector(64.2, -43, 0), App.Vector(0, 0, 1), 1.4),  # 6
    Part.Circle(App.Vector(43, -64.2, 0), App.Vector(0, 0, 1), 1.4),  # 7
    Part.Circle(App.Vector(32.8, -32.8, 0), App.Vector(0, 0, 1), 1.4),  # 8
    Part.Circle(App.Vector(-43, -64.2, 0), App.Vector(0, 0, 1), 1.4),  # 9
    Part.Circle(App.Vector(-64.2, -43, 0), App.Vector(0, 0, 1), 1.4),  # 10
    Part.Circle(App.Vector(-32.8, -32.8, 0), App.Vector(0, 0, 1), 1.4),  # 11
    Part.LineSegment(App.Vector(-35.8, 42.1, 0), App.Vector(-40.5, 56.4, 0)),  # 12
    Part.ArcOfCircle(Part.Circle(App.Vector(-45.2, 54.9, 0), App.Vector(0, 0, 1), 5), math.radians(18), math.radians(135)),  # 13
    Part.LineSegment(App.Vector(-48.8, 58.4, 0), App.Vector(-58.4, 48.8, 0)),  # 14
    Part.ArcOfCircle(Part.Circle(App.Vector(-54.9, 45.2, 0), App.Vector(0, 0, 1), 5), math.radians(135), math.radians(252)),  # 15
    Part.LineSegment(App.Vector(-56.4, 40.5, 0), App.Vector(-42.1, 35.8, 0)),  # 16
    Part.ArcOfCircle(Part.Circle(App.Vector(-40.6, 40.6, 0), App.Vector(0, 0, 1), 5), math.radians(-108), math.radians(18)),  # 17
    Part.LineSegment(App.Vector(40.5, 56.4, 0), App.Vector(35.8, 42.1, 0)),  # 18
    Part.ArcOfCircle(Part.Circle(App.Vector(40.6, 40.6, 0), App.Vector(0, 0, 1), 5), math.radians(162), math.radians(288)),  # 19
    Part.LineSegment(App.Vector(42.1, 35.8, 0), App.Vector(56.4, 40.5, 0)),  # 20
    Part.ArcOfCircle(Part.Circle(App.Vector(54.9, 45.2, 0), App.Vector(0, 0, 1), 5), math.radians(-72), math.radians(45)),  # 21
    Part.LineSegment(App.Vector(58.4, 48.8, 0), App.Vector(48.8, 58.4, 0)),  # 22
    Part.ArcOfCircle(Part.Circle(App.Vector(45.2, 54.9, 0), App.Vector(0, 0, 1), 5), math.radians(45), math.radians(162)),  # 23
    Part.LineSegment(App.Vector(56.4, -40.5, 0), App.Vector(42.1, -35.8, 0)),  # 24
    Part.ArcOfCircle(Part.Circle(App.Vector(40.6, -40.6, 0), App.Vector(0, 0, 1), 5), math.radians(72), math.radians(198)),  # 25
    Part.LineSegment(App.Vector(35.8, -42.1, 0), App.Vector(40.5, -56.4, 0)),  # 26
    Part.ArcOfCircle(Part.Circle(App.Vector(45.2, -54.9, 0), App.Vector(0, 0, 1), 5), math.radians(-162), math.radians(-45)),  # 27
    Part.LineSegment(App.Vector(48.8, -58.4, 0), App.Vector(58.4, -48.8, 0)),  # 28
    Part.ArcOfCircle(Part.Circle(App.Vector(54.9, -45.2, 0), App.Vector(0, 0, 1), 5), math.radians(-45), math.radians(72)),  # 29
    Part.LineSegment(App.Vector(-40.5, -56.4, 0), App.Vector(-35.8, -42.1, 0)),  # 30
    Part.ArcOfCircle(Part.Circle(App.Vector(-40.6, -40.6, 0), App.Vector(0, 0, 1), 5), math.radians(-18), math.radians(108)),  # 31
    Part.LineSegment(App.Vector(-42.1, -35.8, 0), App.Vector(-56.4, -40.5, 0)),  # 32
    Part.ArcOfCircle(Part.Circle(App.Vector(-54.9, -45.2, 0), App.Vector(0, 0, 1), 5), math.radians(108), math.radians(225)),  # 33
    Part.LineSegment(App.Vector(-58.4, -48.8, 0), App.Vector(-48.8, -58.4, 0)),  # 34
    Part.ArcOfCircle(Part.Circle(App.Vector(-45.2, -54.9, 0), App.Vector(0, 0, 1), 5), math.radians(-135), math.radians(-18)),  # 35
], False)
sketch5.addConstraint([
    Sketcher.Constraint("Tangent", 12, 2, 13, 1),
    Sketcher.Constraint("Tangent", 13, 2, 14, 1),
    Sketcher.Constraint("Tangent", 14, 2, 15, 1),
    Sketcher.Constraint("Tangent", 15, 2, 16, 1),
    Sketcher.Constraint("Tangent", 16, 2, 17, 1),
    Sketcher.Constraint("Tangent", 17, 2, 12, 1),
    Sketcher.Constraint("Tangent", 18, 2, 19, 1),
    Sketcher.Constraint("Tangent", 19, 2, 20, 1),
    Sketcher.Constraint("Tangent", 20, 2, 21, 1),
    Sketcher.Constraint("Tangent", 21, 2, 22, 1),
    Sketcher.Constraint("Tangent", 22, 2, 23, 1),
    Sketcher.Constraint("Tangent", 23, 2, 18, 1),
    Sketcher.Constraint("Tangent", 24, 2, 25, 1),
    Sketcher.Constraint("Tangent", 25, 2, 26, 1),
    Sketcher.Constraint("Tangent", 26, 2, 27, 1),
    Sketcher.Constraint("Tangent", 27, 2, 28, 1),
    Sketcher.Constraint("Tangent", 28, 2, 29, 1),
    Sketcher.Constraint("Tangent", 29, 2, 24, 1),
    Sketcher.Constraint("Tangent", 30, 2, 31, 1),
    Sketcher.Constraint("Tangent", 31, 2, 32, 1),
    Sketcher.Constraint("Tangent", 32, 2, 33, 1),
    Sketcher.Constraint("Tangent", 33, 2, 34, 1),
    Sketcher.Constraint("Tangent", 34, 2, 35, 1),
    Sketcher.Constraint("Tangent", 35, 2, 30, 1),
    Sketcher.Constraint("Equal", 0, 1),
    Sketcher.Constraint("Equal", 1, 2),
    Sketcher.Constraint("Equal", 2, 3),
    Sketcher.Constraint("Equal", 3, 4),
    Sketcher.Constraint("Equal", 4, 5),
    Sketcher.Constraint("Equal", 5, 6),
    Sketcher.Constraint("Equal", 6, 7),
    Sketcher.Constraint("Equal", 7, 8),
    Sketcher.Constraint("Equal", 8, 9),
    Sketcher.Constraint("Equal", 9, 10),
    Sketcher.Constraint("Equal", 10, 11),
    Sketcher.Constraint("Equal", 13, 15),
    Sketcher.Constraint("Equal", 15, 17),
    Sketcher.Constraint("Equal", 17, 19),
    Sketcher.Constraint("Equal", 19, 21),
    Sketcher.Constraint("Equal", 21, 23),
    Sketcher.Constraint("Equal", 23, 25),
    Sketcher.Constraint("Equal", 25, 27),
    Sketcher.Constraint("Equal", 27, 29),
    Sketcher.Constraint("Equal", 29, 31),
    Sketcher.Constraint("Equal", 31, 33),
    Sketcher.Constraint("Equal", 33, 35),
    Sketcher.Constraint("Symmetric", 0, 3, 6, 3, -1, 1),
    Sketcher.Constraint("Symmetric", 1, 3, 7, 3, -1, 1),
    Sketcher.Constraint("Symmetric", 2, 3, 8, 3, -1, 1),
    Sketcher.Constraint("Symmetric", 3, 3, 9, 3, -1, 1),
    Sketcher.Constraint("Symmetric", 4, 3, 10, 3, -1, 1),
    Sketcher.Constraint("Symmetric", 5, 3, 11, 3, -1, 1),
    Sketcher.Constraint("Symmetric", 17, 3, 25, 3, -1, 1),
    Sketcher.Constraint("Symmetric", 13, 3, 27, 3, -1, 1),
    Sketcher.Constraint("Symmetric", 15, 3, 29, 3, -1, 1),
    Sketcher.Constraint("Symmetric", 19, 3, 31, 3, -1, 1),
    Sketcher.Constraint("Symmetric", 21, 3, 33, 3, -1, 1),
    Sketcher.Constraint("Symmetric", 23, 3, 35, 3, -1, 1),
    Sketcher.Constraint("Symmetric", 1, 3, 3, 3, -2),
    Sketcher.Constraint("Symmetric", 0, 3, 4, 3, -2),
    Sketcher.Constraint("Perpendicular", 16, 18),
    Sketcher.Constraint("Perpendicular", 12, 20),
    Sketcher.Constraint("Perpendicular", 14, 22),
    Sketcher.Constraint("Equal", 16, 18),
    Sketcher.Constraint("Radius", 13, Q("5 mm")),
    Sketcher.Constraint("Diameter", 0, Q("2.85 mm")),
    Sketcher.Constraint("Angle", 14, Q("-135 deg")),
    Sketcher.Constraint("DistanceY", -1, 1, 0, 3, Q("42.981901 mm")),
    Sketcher.Constraint("DistanceX", 1, 3, -1, 1, Q("42.981901 mm")),
    Sketcher.Constraint("DistanceX", 2, 3, 5, 3, Q("65.607901 mm")),
    Sketcher.Constraint("DistanceY", 8, 3, 5, 3, Q("65.607901 mm")),
    Sketcher.Constraint("DistanceY", 15, 3, 1, 3, Q("18.9752 mm")),
    Sketcher.Constraint("DistanceY", 17, 3, 13, 3, Q("14.303902 mm")),
    Sketcher.Constraint("DistanceX", 23, 3, 4, 3, Q("18.9752 mm")),
    Sketcher.Constraint("DistanceX", 15, 2, 17, 3, Q("15.846101 mm")),
    Sketcher.Constraint("Distance", 14, Q("13.670048 mm")),
    Sketcher.Constraint("DistanceX", 2, 3, -1, 1, Q("32.803839 mm")),
    Sketcher.Constraint("DistanceY", -1, 1, 5, 3, Q("32.803839 mm")),
    Sketcher.Constraint("DistanceX", 13, 3, -1, 1, Q("45.21985 mm")),
    Sketcher.Constraint("DistanceY", -1, 1, 13, 3, Q("54.886089 mm")),
    Sketcher.Constraint("DistanceY", -1, 1, 19, 3, Q("40.58203 mm")),
    Sketcher.Constraint("DistanceX", -1, 1, 21, 3, Q("54.886089 mm")),
])
pocket4 = body.newObject("PartDesign::Pocket", "Pocket003")
pocket4.Profile = sketch5
pocket4.Length = 10

doc.recompute()
